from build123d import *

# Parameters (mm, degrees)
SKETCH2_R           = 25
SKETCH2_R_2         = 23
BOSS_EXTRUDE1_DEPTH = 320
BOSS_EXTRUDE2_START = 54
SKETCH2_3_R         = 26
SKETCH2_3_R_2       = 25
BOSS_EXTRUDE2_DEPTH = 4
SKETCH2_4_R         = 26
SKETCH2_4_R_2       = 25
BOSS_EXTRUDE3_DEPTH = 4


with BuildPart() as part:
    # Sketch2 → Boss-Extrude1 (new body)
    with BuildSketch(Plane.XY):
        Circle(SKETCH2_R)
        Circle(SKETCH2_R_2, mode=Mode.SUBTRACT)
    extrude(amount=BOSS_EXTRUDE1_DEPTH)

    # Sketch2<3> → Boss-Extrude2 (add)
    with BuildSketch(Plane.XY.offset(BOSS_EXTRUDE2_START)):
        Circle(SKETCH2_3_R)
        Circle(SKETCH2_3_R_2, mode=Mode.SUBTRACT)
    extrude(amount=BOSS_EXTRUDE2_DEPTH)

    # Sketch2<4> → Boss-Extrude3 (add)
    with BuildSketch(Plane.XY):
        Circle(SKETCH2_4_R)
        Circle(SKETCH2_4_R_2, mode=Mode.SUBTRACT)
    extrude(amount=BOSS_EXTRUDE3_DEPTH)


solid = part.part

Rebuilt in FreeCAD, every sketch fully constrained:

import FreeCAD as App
import Part
import Sketcher

doc = App.newDocument("Part")
body = doc.addObject("PartDesign::Body", "Body")

# Sketch on XY plane
sketch1 = body.newObject("Sketcher::SketchObject", "Sketch")
sketch1.AttachmentSupport = (doc.getObject("XY_Plane"), [""])
sketch1.MapMode = "FlatFace"
sketch1.addGeometry([
    Part.Circle(App.Vector(0, 0, 0), App.Vector(0, 0, 1), 25),
    Part.Circle(App.Vector(0, 0, 0), App.Vector(0, 0, 1), 23),
], False)
sketch1.addConstraint([
    Sketcher.Constraint("Coincident", 0, 3, -1, 1),
    Sketcher.Constraint("Coincident", 1, 3, -1, 1),
    Sketcher.Constraint("Diameter", 0, 50.0),
    Sketcher.Constraint("Diameter", 1, 46.0),
])
pad1 = body.newObject("PartDesign::Pad", "Pad")
pad1.Profile = sketch1
pad1.Length = 320

# Sketch on XY plane
sketch2 = body.newObject("Sketcher::SketchObject", "Sketch001")
sketch2.AttachmentSupport = (doc.getObject("XY_Plane"), [""])
sketch2.MapMode = "FlatFace"
sketch2.AttachmentOffset = App.Placement(App.Vector(0, 0, 54), App.Rotation())
sketch2.addGeometry([
    Part.Circle(App.Vector(0, 0, 0), App.Vector(0, 0, 1), 26),
    Part.Circle(App.Vector(0, 0, 0), App.Vector(0, 0, 1), 25),
], False)
sketch2.addConstraint([
    Sketcher.Constraint("Coincident", 0, 3, -1, 1),
    Sketcher.Constraint("Coincident", 1, 3, -1, 1),
    Sketcher.Constraint("Diameter", 0, 52.0),
    Sketcher.Constraint("Diameter", 1, 50.0),
])
pad2 = body.newObject("PartDesign::Pad", "Pad001")
pad2.Profile = sketch2
pad2.Length = 4

# Sketch on XY plane
sketch3 = body.newObject("Sketcher::SketchObject", "Sketch002")
sketch3.AttachmentSupport = (doc.getObject("XY_Plane"), [""])
sketch3.MapMode = "FlatFace"
sketch3.addGeometry([
    Part.Circle(App.Vector(0, 0, 0), App.Vector(0, 0, 1), 26),
    Part.Circle(App.Vector(0, 0, 0), App.Vector(0, 0, 1), 25),
], False)
sketch3.addConstraint([
    Sketcher.Constraint("Coincident", 0, 3, -1, 1),
    Sketcher.Constraint("Coincident", 1, 3, -1, 1),
    Sketcher.Constraint("Diameter", 0, 52.0),
    Sketcher.Constraint("Diameter", 1, 50.0),
])
pad3 = body.newObject("PartDesign::Pad", "Pad002")
pad3.Profile = sketch3
pad3.Length = 4

doc.recompute()
